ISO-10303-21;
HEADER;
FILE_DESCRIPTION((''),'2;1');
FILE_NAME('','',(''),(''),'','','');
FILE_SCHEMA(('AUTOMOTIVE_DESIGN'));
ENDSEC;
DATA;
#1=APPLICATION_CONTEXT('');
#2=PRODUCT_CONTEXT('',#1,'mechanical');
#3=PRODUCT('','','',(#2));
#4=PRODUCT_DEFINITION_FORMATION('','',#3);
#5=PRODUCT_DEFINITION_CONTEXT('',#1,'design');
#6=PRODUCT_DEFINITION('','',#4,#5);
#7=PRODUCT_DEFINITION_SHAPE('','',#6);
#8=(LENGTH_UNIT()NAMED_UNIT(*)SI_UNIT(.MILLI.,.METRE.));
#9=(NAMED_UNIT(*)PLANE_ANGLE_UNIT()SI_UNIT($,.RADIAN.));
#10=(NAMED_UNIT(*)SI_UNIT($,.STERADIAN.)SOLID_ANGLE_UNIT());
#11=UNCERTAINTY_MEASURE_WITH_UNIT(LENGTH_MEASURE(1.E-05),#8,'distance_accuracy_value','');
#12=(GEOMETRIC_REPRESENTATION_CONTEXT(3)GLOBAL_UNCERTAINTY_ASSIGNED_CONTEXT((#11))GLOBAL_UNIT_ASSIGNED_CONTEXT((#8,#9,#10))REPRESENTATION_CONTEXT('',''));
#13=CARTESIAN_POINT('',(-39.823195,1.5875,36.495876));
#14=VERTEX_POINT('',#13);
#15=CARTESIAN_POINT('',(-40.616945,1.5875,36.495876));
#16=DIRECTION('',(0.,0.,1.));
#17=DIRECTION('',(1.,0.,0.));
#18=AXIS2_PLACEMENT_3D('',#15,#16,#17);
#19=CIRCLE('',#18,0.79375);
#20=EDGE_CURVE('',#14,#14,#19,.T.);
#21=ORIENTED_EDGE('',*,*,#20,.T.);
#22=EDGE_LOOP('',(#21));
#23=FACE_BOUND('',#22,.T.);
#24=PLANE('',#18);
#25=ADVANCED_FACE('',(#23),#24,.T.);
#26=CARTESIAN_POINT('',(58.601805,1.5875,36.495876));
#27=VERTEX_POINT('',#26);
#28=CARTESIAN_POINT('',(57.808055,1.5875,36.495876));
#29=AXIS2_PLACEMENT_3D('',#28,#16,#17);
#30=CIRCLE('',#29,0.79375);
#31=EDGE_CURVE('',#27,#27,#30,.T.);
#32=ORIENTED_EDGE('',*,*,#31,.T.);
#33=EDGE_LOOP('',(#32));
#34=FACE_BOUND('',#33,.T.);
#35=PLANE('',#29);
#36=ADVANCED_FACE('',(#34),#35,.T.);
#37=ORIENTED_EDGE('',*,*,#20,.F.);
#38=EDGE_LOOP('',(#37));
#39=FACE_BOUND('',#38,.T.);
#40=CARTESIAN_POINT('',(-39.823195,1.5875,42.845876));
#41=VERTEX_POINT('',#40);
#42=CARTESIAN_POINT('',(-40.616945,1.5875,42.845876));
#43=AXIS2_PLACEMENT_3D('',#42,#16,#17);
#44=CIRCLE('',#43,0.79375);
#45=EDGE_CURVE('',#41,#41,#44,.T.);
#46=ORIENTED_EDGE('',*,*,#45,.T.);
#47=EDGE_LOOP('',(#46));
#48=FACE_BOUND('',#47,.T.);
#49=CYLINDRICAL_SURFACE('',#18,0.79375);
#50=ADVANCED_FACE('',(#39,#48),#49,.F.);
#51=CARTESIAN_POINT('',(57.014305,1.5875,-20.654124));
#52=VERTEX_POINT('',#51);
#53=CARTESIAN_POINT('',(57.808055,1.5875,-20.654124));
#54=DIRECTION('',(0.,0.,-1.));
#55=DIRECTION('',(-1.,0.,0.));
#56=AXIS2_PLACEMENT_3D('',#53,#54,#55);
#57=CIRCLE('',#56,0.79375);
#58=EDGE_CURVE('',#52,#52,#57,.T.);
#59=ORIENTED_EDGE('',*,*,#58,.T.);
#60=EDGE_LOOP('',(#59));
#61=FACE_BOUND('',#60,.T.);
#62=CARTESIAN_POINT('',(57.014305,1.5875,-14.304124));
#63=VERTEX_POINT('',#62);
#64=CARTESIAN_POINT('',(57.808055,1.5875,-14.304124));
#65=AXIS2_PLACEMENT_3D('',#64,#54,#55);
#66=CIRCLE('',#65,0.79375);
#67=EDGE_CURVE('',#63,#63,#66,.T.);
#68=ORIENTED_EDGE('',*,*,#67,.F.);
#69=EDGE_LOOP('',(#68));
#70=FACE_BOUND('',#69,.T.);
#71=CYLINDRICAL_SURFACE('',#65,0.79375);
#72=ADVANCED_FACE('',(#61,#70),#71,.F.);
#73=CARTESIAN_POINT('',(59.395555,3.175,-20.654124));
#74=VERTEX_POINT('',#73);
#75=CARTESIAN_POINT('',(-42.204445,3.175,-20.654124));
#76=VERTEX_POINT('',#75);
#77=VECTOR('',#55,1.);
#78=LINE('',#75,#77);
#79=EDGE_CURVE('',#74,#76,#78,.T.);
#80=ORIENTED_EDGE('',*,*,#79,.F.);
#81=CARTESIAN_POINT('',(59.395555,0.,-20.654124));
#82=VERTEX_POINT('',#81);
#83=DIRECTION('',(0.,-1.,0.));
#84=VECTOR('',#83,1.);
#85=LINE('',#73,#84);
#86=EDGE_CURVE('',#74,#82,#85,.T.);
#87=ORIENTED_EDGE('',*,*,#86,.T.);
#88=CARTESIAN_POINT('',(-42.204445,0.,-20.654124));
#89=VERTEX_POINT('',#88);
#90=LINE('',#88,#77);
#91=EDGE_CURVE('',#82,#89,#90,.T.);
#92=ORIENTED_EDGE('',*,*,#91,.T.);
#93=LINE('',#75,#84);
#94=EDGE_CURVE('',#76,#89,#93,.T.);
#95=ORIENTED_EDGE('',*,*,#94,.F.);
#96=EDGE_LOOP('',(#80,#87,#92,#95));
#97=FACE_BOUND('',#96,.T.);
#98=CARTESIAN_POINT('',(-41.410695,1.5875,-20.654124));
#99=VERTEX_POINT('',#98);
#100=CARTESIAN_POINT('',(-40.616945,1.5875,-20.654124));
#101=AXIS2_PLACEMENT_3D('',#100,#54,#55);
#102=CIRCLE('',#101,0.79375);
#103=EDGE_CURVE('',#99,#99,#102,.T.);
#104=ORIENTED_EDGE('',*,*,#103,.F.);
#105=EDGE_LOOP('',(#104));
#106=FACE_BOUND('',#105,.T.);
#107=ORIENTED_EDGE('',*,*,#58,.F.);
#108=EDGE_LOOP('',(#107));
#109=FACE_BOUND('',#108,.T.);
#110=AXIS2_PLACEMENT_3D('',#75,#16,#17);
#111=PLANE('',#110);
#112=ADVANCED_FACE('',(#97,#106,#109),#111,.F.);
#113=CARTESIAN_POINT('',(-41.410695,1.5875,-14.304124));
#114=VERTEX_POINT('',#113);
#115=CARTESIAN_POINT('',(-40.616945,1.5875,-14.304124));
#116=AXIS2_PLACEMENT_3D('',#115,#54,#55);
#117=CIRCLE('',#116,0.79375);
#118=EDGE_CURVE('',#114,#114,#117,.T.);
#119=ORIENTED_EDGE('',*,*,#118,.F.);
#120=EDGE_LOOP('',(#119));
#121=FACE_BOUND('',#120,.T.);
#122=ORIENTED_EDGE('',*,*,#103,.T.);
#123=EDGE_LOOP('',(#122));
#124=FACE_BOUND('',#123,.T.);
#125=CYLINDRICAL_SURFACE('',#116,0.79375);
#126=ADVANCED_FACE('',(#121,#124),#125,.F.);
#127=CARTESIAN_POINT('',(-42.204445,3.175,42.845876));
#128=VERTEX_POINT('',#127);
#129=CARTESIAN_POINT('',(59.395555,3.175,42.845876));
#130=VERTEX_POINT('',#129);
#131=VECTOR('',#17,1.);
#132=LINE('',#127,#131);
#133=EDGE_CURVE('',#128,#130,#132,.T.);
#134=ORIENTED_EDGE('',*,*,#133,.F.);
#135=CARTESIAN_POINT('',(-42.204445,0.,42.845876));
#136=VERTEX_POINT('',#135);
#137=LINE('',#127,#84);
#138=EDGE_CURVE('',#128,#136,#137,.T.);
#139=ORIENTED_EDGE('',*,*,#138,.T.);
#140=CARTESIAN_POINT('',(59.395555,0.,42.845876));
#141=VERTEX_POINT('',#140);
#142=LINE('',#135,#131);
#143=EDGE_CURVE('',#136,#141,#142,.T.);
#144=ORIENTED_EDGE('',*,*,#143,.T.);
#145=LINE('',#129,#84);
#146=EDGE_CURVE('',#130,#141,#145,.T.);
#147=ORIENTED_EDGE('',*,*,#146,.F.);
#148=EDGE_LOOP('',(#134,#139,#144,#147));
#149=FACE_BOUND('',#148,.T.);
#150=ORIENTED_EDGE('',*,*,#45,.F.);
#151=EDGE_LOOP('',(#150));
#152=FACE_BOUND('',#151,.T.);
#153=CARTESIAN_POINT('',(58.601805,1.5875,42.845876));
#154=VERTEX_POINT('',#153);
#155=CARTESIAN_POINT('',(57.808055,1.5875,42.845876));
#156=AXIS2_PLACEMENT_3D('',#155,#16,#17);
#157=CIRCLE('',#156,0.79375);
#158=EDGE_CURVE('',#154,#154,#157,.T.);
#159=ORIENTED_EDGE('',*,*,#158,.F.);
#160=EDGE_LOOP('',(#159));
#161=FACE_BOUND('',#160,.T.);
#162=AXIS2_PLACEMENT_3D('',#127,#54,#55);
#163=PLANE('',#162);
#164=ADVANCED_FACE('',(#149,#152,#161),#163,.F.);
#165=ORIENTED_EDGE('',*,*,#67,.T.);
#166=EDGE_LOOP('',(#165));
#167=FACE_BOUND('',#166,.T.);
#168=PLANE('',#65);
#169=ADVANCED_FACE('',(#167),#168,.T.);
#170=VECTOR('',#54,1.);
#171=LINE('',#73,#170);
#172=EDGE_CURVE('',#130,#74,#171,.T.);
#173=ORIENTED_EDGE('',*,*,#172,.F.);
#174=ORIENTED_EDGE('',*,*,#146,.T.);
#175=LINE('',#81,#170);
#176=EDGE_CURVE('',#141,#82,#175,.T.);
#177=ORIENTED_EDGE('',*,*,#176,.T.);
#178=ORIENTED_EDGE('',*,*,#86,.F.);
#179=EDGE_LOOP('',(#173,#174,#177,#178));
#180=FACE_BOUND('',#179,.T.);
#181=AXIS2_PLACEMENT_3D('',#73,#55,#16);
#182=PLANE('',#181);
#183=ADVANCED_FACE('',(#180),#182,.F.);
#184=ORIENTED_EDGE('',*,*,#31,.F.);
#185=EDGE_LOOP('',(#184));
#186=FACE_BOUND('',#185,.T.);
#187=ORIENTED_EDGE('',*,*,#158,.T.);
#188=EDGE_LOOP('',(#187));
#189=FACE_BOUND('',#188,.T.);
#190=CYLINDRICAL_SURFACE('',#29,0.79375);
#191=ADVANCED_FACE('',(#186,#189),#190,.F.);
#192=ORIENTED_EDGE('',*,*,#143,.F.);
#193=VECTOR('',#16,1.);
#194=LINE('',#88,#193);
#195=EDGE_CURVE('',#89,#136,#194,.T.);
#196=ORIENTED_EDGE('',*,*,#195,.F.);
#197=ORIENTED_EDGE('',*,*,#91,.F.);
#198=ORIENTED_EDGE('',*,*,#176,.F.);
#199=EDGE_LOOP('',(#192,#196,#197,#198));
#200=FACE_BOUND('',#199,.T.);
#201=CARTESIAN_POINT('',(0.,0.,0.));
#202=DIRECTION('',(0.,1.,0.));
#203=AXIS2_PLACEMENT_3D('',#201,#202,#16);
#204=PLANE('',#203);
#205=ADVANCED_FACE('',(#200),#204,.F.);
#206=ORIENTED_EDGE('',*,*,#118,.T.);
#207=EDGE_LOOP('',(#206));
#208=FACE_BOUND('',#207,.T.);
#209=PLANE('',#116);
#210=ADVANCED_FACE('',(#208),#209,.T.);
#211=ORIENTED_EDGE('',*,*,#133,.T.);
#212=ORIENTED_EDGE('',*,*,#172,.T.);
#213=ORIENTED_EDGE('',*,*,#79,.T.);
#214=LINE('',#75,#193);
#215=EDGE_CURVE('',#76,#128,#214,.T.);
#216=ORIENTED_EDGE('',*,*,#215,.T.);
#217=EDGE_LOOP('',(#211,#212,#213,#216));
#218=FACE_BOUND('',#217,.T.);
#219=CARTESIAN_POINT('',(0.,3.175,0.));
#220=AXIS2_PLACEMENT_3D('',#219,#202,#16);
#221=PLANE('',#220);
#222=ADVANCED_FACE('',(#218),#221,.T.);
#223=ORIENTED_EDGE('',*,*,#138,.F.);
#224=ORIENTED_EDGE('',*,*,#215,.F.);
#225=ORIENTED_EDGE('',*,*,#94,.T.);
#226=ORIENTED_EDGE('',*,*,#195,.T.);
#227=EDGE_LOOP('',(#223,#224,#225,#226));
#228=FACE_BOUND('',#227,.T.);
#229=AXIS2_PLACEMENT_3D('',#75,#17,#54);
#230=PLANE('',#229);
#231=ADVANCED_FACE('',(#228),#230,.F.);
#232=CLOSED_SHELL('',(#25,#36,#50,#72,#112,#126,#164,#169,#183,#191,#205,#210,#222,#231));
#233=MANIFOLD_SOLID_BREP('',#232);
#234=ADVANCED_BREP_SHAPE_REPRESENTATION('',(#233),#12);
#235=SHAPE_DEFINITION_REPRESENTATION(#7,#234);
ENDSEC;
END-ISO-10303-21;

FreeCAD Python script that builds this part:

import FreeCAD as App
import Part
import Sketcher
Q = App.Units.Quantity

doc = App.newDocument("Part")
body = doc.addObject("PartDesign::Body", "Body")

# Sketch on XZ plane
sketch1 = body.newObject("Sketcher::SketchObject", "Sketch")
sketch1.AttachmentSupport = (doc.getObject("XZ_Plane"), [""])
sketch1.MapMode = "FlatFace"
sketch1.addGeometry([
    Part.LineSegment(App.Vector(-42, -21, 0), App.Vector(-42, 43, 0)),
    Part.LineSegment(App.Vector(-42, 43, 0), App.Vector(59, 43, 0)),
    Part.LineSegment(App.Vector(59, 43, 0), App.Vector(59, -21, 0)),
    Part.LineSegment(App.Vector(59, -21, 0), App.Vector(-42, -21, 0)),
], False)
sketch1.addConstraint([
    Sketcher.Constraint("Coincident", 0, 2, 1, 1),
    Sketcher.Constraint("Coincident", 1, 2, 2, 1),
    Sketcher.Constraint("Coincident", 2, 2, 3, 1),
    Sketcher.Constraint("Coincident", 3, 2, 0, 1),
    Sketcher.Constraint("Vertical", 0),
    Sketcher.Constraint("Horizontal", 1),
    Sketcher.Constraint("Vertical", 2),
    Sketcher.Constraint("Horizontal", 3),
    Sketcher.Constraint("DistanceX", 1, 1, 1, 2, Q("4 in")),
    Sketcher.Constraint("DistanceY", 0, 1, 0, 2, Q("2.5 in")),
    Sketcher.Constraint("DistanceX", 0, 2, -1, 1, Q("42.204445 mm")),
    Sketcher.Constraint("DistanceY", -1, 1, 0, 2, Q("42.845876 mm")),
])
pad1 = body.newObject("PartDesign::Pad", "Pad")
pad1.Profile = sketch1
pad1.Length = Q("0.125 in")
pad1.Reversed = True

# Sketch on XY plane
sketch2 = body.newObject("Sketcher::SketchObject", "Sketch001")
sketch2.AttachmentSupport = (doc.getObject("XY_Plane"), [""])
sketch2.MapMode = "FlatFace"
sketch2.AttachmentOffset = App.Placement(App.Vector(0, 0, 42.845876), App.Rotation())
sketch2.addGeometry([
    Part.Circle(App.Vector(-40.6, 1.6, 0), App.Vector(0, 0, 1), 0.8),
    Part.Circle(App.Vector(57.8, 1.6, 0), App.Vector(0, 0, 1), 0.8),
], False)
sketch2.addConstraint([
    Sketcher.Constraint("Equal", 0, 1),
    Sketcher.Constraint("Horizontal", 0, 3, 1, 3),
    Sketcher.Constraint("Diameter", 0, Q("0.0625 in")),
    Sketcher.Constraint("DistanceY", -1, 1, 0, 3, Q("0.0625 in")),
    Sketcher.Constraint("DistanceX", 0, 3, 1, 3, Q("3.875 in")),
    Sketcher.Constraint("DistanceX", 0, 3, -1, 1, Q("40.616945 mm")),
])
pocket1 = body.newObject("PartDesign::Pocket", "Pocket")
pocket1.Profile = sketch2
pocket1.Length = Q("0.25 in")

# Sketch on XY plane
sketch3 = body.newObject("Sketcher::SketchObject", "Sketch002")
sketch3.AttachmentSupport = (doc.getObject("XY_Plane"), [""])
sketch3.MapMode = "FlatFace"
sketch3.AttachmentOffset = App.Placement(App.Vector(0, 0, -20.654124), App.Rotation())
sketch3.addGeometry([
    Part.Circle(App.Vector(57.8, 1.6, 0), App.Vector(0, 0, 1), 0.8),
    Part.Circle(App.Vector(-40.6, 1.6, 0), App.Vector(0, 0, 1), 0.8),
], False)
sketch3.addConstraint([
    Sketcher.Constraint("Equal", 0, 1),
    Sketcher.Constraint("Horizontal", 0, 3, 1, 3),
    Sketcher.Constraint("Diameter", 0, Q("0.0625 in")),
    Sketcher.Constraint("DistanceY", -1, 1, 0, 3, Q("0.0625 in")),
    Sketcher.Constraint("DistanceX", 1, 3, 0, 3, Q("3.875 in")),
    Sketcher.Constraint("DistanceX", -1, 1, 0, 3, Q("57.808055 mm")),
])
pocket2 = body.newObject("PartDesign::Pocket", "Pocket001")
pocket2.Profile = sketch3
pocket2.Length = Q("0.25 in")
pocket2.Reversed = True

doc.recompute()
